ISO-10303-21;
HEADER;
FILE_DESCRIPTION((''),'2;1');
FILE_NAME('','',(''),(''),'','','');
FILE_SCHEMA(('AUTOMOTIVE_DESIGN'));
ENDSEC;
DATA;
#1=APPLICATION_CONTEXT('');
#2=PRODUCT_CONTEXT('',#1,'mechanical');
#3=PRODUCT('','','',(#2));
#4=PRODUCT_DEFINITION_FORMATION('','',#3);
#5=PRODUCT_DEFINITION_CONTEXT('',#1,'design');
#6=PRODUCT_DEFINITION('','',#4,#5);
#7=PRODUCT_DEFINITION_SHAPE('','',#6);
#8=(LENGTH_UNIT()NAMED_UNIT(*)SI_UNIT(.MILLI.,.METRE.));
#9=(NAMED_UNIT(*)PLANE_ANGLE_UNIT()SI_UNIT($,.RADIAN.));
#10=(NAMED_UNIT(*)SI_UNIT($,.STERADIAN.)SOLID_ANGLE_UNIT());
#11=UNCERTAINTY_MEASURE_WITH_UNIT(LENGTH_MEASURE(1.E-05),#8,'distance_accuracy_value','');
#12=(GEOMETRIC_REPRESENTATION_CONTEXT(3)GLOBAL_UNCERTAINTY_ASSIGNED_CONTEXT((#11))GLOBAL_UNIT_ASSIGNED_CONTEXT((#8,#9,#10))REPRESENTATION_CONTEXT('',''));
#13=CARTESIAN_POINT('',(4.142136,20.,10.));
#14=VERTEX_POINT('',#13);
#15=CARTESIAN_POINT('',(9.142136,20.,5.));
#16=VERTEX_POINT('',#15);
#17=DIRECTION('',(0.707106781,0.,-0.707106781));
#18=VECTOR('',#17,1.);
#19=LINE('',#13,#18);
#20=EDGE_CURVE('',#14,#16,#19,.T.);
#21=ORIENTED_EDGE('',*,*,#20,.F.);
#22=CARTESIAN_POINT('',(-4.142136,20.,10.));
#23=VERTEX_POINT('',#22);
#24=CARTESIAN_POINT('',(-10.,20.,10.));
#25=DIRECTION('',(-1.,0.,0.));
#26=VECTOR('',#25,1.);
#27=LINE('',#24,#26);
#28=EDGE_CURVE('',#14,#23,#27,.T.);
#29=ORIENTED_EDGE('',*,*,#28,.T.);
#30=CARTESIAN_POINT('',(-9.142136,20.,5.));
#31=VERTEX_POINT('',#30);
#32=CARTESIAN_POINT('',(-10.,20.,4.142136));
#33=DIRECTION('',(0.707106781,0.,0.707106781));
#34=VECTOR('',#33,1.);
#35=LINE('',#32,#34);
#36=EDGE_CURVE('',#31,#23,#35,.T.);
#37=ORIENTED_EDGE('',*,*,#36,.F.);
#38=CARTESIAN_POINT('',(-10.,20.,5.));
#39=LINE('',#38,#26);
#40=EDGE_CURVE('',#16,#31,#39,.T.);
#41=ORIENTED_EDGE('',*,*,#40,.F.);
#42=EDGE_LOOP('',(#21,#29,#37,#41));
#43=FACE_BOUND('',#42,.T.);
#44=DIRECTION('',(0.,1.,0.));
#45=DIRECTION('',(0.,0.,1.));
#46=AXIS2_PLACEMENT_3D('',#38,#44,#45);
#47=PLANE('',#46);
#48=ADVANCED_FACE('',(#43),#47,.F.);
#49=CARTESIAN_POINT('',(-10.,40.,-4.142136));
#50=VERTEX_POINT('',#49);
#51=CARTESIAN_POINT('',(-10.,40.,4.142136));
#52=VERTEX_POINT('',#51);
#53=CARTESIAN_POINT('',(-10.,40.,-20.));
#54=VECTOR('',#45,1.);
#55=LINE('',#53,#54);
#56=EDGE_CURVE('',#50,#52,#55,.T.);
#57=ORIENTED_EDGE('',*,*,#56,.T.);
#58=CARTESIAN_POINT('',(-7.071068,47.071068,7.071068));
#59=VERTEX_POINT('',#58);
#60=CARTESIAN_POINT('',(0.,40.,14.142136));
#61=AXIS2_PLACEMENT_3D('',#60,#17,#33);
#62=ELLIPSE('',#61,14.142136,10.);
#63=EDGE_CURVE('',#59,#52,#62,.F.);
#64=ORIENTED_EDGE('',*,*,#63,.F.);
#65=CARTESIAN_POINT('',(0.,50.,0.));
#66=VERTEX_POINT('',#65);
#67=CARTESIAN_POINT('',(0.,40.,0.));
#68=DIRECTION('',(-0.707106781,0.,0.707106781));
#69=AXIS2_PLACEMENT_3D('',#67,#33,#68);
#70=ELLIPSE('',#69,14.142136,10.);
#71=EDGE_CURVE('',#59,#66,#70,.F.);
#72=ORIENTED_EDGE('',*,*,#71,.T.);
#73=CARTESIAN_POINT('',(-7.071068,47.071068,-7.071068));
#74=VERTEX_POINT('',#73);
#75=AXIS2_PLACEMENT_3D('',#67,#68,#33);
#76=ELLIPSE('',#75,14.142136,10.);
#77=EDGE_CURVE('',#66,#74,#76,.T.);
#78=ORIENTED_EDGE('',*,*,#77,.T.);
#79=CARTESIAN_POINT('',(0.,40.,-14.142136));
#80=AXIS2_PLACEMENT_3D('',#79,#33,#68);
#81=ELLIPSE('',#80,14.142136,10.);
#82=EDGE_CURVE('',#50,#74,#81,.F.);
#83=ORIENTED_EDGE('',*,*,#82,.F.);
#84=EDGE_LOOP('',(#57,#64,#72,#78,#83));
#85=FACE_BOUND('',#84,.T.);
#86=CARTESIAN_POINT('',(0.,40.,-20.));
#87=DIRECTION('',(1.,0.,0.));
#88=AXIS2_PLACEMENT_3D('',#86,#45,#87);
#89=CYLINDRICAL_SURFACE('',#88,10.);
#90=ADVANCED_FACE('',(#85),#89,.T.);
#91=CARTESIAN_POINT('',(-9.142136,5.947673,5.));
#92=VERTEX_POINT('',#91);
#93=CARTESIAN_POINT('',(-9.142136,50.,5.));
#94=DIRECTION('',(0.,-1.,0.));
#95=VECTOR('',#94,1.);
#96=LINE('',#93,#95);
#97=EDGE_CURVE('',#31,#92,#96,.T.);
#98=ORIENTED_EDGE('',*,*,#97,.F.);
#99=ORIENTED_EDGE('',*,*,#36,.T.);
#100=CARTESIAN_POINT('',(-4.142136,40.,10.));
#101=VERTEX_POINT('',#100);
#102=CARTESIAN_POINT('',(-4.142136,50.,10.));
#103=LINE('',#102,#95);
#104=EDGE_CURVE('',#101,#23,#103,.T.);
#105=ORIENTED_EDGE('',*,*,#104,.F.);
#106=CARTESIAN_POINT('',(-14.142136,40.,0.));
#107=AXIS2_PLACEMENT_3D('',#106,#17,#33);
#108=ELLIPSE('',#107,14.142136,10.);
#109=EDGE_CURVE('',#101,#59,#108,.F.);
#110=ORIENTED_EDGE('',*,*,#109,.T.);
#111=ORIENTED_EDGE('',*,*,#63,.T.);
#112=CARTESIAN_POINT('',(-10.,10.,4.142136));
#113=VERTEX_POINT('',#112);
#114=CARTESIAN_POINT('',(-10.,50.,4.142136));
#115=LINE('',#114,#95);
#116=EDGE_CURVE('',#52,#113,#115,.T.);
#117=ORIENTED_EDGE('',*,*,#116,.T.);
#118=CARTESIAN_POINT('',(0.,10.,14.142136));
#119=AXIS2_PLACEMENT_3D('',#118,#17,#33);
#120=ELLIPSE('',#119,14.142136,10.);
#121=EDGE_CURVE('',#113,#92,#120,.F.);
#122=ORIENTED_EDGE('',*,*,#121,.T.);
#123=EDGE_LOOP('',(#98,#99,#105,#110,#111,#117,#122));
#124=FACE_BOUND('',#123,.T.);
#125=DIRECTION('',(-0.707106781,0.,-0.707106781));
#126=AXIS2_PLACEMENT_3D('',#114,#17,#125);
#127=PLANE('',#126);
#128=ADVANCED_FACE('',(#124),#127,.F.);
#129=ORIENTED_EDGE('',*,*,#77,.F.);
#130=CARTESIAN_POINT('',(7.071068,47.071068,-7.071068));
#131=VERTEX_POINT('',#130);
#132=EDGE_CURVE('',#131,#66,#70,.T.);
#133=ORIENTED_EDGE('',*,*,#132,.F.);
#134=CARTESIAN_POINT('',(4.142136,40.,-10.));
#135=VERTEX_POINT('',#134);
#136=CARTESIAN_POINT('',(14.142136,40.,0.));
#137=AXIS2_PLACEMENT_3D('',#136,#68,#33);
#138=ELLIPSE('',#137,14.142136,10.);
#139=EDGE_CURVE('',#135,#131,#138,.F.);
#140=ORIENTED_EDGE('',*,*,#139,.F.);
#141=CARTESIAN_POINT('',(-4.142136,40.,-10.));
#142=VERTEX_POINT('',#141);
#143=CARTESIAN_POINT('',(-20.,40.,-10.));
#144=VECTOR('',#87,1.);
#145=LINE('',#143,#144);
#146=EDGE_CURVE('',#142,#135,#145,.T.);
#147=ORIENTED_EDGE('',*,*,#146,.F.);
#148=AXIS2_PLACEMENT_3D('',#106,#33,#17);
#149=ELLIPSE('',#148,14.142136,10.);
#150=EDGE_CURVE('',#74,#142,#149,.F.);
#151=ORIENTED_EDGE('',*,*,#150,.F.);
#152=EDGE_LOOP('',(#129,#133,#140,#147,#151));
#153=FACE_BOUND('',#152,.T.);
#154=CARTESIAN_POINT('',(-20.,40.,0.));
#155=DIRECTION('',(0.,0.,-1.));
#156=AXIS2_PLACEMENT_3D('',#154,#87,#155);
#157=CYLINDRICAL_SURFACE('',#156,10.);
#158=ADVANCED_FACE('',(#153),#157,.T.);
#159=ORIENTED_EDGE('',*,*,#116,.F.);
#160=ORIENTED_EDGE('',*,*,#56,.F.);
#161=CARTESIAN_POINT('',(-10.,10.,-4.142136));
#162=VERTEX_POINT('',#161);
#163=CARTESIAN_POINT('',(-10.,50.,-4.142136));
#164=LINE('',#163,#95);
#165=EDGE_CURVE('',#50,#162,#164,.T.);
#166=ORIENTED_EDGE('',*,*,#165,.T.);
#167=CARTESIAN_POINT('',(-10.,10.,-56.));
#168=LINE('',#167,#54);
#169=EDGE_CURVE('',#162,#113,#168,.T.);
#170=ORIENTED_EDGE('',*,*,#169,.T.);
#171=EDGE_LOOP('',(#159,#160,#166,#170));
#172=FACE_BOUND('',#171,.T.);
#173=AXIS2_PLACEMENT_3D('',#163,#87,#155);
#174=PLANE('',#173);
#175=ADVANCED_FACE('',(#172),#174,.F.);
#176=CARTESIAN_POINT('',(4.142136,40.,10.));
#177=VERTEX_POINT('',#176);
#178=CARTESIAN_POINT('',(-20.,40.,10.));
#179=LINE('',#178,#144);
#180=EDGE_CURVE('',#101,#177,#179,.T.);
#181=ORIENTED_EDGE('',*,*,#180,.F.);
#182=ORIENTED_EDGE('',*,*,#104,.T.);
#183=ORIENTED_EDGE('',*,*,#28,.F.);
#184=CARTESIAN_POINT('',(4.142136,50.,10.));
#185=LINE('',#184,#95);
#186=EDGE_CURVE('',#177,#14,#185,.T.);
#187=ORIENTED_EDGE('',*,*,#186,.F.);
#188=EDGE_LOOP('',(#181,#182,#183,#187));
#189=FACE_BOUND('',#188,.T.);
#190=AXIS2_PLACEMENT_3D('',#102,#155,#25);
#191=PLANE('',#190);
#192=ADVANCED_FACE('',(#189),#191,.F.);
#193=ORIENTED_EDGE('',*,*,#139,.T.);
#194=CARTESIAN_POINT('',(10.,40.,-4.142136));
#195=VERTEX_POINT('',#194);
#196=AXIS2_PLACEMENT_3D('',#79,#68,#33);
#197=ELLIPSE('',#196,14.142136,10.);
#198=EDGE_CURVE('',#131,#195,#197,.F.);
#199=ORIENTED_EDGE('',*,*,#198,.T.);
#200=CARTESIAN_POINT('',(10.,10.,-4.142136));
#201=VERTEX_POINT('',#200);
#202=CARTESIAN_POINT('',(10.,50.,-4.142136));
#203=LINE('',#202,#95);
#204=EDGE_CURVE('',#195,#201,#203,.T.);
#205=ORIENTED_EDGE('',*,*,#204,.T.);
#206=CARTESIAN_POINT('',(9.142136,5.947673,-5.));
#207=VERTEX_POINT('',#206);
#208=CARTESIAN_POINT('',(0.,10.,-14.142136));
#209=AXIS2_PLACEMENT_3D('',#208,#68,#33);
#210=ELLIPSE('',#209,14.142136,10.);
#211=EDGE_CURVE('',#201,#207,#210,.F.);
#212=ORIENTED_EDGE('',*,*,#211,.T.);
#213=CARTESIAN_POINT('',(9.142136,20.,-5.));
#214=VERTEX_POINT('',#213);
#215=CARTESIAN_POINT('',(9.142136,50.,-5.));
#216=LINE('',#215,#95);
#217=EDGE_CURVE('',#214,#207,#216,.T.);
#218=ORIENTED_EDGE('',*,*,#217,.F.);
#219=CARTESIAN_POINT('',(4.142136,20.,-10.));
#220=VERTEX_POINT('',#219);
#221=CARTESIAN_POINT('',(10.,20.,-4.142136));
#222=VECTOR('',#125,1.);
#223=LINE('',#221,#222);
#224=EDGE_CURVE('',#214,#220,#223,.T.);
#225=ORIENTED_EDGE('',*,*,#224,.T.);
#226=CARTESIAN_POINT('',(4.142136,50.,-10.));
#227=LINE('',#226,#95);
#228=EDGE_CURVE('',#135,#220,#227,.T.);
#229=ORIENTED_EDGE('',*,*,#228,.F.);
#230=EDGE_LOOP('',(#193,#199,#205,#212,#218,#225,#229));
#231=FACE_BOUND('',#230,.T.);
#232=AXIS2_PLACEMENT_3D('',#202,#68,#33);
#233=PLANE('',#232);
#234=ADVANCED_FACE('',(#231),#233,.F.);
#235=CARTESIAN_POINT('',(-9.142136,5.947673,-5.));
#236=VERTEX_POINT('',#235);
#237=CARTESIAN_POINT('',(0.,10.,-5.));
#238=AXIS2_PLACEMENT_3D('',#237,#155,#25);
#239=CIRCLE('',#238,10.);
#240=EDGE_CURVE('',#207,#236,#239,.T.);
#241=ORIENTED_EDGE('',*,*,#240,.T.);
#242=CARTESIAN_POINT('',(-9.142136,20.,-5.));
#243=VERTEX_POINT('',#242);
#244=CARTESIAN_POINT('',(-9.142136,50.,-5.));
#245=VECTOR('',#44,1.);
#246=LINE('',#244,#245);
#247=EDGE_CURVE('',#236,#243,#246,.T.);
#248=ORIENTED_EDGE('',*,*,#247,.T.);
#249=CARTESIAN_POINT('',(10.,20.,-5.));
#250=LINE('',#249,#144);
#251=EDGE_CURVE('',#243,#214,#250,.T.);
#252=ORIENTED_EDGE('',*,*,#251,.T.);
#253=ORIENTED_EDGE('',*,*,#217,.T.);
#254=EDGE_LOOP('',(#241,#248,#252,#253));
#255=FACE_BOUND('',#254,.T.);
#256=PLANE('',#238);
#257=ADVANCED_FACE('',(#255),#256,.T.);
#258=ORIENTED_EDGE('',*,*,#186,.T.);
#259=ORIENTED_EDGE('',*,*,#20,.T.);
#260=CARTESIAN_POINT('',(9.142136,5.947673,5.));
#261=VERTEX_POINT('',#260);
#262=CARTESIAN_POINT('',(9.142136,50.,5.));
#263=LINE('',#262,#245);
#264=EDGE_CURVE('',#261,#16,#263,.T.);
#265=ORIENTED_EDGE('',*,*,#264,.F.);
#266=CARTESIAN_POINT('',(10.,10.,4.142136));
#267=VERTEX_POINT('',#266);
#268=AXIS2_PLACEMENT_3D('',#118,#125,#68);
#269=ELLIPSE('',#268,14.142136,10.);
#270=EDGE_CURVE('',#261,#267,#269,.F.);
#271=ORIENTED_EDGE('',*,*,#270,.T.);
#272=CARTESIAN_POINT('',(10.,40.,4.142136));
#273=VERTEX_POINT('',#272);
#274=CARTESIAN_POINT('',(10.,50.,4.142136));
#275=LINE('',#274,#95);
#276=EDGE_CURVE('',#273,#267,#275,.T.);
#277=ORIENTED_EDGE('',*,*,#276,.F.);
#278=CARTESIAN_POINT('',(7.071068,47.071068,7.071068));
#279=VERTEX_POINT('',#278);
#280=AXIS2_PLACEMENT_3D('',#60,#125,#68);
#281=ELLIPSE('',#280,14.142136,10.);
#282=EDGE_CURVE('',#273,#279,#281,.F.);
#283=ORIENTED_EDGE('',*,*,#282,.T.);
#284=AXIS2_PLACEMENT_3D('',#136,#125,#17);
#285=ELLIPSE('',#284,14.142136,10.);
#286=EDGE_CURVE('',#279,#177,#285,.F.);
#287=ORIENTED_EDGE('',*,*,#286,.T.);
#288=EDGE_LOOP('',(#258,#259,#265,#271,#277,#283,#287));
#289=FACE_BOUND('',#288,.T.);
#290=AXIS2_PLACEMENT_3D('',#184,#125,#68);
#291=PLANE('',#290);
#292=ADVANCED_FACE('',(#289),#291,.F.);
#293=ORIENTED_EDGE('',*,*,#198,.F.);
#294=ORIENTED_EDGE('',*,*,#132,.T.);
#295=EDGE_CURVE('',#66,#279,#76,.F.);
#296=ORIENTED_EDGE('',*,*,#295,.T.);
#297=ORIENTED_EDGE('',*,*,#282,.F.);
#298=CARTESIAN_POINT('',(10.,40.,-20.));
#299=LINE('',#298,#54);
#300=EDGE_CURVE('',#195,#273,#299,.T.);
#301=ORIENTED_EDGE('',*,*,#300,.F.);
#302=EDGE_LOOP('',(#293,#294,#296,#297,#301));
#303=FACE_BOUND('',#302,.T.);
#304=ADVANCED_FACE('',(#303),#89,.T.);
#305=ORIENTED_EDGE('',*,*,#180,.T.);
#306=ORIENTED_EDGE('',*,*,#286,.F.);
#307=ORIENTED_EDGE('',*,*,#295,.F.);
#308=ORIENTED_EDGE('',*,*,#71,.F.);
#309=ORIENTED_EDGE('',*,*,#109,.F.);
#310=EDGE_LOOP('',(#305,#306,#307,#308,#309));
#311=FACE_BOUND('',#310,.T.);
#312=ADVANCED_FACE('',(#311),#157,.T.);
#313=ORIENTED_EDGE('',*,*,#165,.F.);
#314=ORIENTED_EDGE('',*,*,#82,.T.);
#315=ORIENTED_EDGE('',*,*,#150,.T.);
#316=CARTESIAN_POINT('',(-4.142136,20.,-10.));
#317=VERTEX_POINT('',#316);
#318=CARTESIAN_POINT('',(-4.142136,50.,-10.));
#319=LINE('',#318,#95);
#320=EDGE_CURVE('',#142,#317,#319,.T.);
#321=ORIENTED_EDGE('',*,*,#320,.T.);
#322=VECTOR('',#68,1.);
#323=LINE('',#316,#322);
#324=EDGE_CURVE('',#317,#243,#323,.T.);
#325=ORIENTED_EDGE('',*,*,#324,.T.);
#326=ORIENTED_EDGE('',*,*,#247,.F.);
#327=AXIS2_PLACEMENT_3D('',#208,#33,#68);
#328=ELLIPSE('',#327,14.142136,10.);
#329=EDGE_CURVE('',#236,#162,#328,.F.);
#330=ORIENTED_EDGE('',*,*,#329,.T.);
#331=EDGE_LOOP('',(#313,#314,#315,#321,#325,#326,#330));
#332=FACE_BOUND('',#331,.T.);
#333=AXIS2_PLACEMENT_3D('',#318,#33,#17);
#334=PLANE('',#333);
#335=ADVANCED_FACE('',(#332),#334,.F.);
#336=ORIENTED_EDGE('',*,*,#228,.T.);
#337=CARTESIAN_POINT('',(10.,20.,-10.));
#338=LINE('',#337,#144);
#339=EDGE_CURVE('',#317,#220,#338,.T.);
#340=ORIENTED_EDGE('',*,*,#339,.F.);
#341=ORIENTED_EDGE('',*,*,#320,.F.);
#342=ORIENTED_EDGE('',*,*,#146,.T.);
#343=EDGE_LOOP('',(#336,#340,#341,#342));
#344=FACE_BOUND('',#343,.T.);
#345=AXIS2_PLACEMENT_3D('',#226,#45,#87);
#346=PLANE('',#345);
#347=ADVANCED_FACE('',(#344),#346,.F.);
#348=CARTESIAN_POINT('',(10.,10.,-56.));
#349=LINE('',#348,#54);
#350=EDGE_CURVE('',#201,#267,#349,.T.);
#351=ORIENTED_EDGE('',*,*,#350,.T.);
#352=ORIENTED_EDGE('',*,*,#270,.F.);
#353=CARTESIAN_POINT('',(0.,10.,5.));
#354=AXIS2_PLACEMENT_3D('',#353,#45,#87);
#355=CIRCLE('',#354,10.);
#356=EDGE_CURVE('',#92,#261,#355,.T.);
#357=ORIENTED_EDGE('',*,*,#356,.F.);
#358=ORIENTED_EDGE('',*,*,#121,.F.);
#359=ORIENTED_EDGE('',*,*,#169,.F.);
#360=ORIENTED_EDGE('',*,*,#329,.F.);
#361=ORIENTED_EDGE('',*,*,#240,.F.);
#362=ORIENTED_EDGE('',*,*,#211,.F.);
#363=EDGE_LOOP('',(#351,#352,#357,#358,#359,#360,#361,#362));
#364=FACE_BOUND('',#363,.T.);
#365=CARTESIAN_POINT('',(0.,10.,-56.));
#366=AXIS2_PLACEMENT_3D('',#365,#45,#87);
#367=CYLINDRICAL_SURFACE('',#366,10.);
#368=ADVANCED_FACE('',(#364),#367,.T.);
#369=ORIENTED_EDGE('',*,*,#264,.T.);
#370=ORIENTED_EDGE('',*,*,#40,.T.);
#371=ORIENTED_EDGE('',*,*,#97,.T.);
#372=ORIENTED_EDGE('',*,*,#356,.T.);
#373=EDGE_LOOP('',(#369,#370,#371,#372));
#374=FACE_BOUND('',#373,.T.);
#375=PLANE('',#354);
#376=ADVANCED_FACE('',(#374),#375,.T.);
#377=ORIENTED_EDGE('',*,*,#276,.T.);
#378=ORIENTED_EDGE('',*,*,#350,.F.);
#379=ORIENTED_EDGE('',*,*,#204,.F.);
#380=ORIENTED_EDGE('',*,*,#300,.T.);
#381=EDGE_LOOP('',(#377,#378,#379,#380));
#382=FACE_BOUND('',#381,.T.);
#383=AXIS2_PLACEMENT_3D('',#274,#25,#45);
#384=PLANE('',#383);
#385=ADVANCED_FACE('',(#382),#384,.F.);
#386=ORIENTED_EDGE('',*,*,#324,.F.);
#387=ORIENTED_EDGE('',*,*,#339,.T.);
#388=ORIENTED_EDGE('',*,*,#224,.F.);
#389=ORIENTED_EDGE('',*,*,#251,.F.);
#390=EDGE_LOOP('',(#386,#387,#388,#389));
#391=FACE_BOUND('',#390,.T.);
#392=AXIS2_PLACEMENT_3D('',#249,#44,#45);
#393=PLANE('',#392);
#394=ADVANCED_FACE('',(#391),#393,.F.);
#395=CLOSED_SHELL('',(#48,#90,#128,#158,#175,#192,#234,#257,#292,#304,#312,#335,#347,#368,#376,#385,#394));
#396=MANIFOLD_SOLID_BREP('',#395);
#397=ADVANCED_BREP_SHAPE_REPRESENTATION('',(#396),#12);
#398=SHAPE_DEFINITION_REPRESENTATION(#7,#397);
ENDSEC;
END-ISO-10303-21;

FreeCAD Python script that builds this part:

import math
import FreeCAD as App
import Part
import Sketcher
from FreeCAD import Vector


def add_polygon(sketch, points):
    """Adds a closed chain of lines whose ends are joined by coincident constraints."""
    first, n = sketch.GeometryCount, len(points)
    for a, b in zip(points, points[1:] + points[:1]):
        sketch.addGeometry(Part.LineSegment(App.Vector(*a, 0), App.Vector(*b, 0)), False)
    for i in range(n):
        sketch.addConstraint(Sketcher.Constraint("Coincident", first + i, 2, first + (i + 1) % n, 1))

doc = App.newDocument("Part")
body = doc.addObject("PartDesign::Body", "Body")

sketch1 = doc.addObject("Sketcher::SketchObject", "Sketch")
body.addObject(sketch1)
sketch1.AttachmentSupport = (doc.XZ_Plane, [""])
sketch1.MapMode = "FlatFace"
add_polygon(sketch1, [(10, -4.142136), (4.142136, -10), (-4.142136, -10), (-10, -4.142136), (-10, 4.142136), (-4.142136, 10), (4.142136, 10), (10, 4.142136)])
sketch1.addConstraint([
    Sketcher.Constraint("Horizontal", 1),
    Sketcher.Constraint("Vertical", 3),
    Sketcher.Constraint("Horizontal", 5),
    Sketcher.Constraint("Vertical", 7),
    Sketcher.Constraint("Symmetric", 0, 2, 4, 2, -1, 1),
    Sketcher.Constraint("Symmetric", 2, 2, 6, 2, -1, 1),
    Sketcher.Constraint("Perpendicular", 0, 2),
    Sketcher.Constraint("Perpendicular", 2, 4),
    Sketcher.Constraint("Perpendicular", 4, 6),
    Sketcher.Constraint("Horizontal", 3, 2, 6, 2),
    Sketcher.Constraint("Vertical", 1, 2, 4, 2),
    Sketcher.Constraint("Equal", 5, 3),
    Sketcher.Constraint("DistanceY", 0, 2, -1, 1, 10.0),
    Sketcher.Constraint("DistanceX", 1, 2, 1, 1, 8.284271),
])
pad1 = doc.addObject("PartDesign::Pad", "Pad")
body.addObject(pad1)
pad1.Profile = sketch1
pad1.Length = 50
pad1.Reversed = True

sketch2 = doc.addObject("Sketcher::SketchObject", "Sketch001")
body.addObject(sketch2)
sketch2.AttachmentSupport = (doc.XY_Plane, [""])
sketch2.MapMode = "FlatFace"
sketch2.AttachmentOffset = App.Placement(Vector(0, 0, 10), App.Rotation())
sketch2.addGeometry([
    Part.LineSegment(Vector(-10, 10, 0), Vector(-10, -2.389296, 0)),
    Part.LineSegment(Vector(-10, -2.389296, 0), Vector(10, -2.389296, 0)),
    Part.LineSegment(Vector(10, -2.389296, 0), Vector(10, 10, 0)),
    Part.ArcOfCircle(Part.Circle(Vector(0, 10, 0), Vector(0, 0, 1), 10), math.radians(180), math.radians(360)),
], False)
sketch2.addConstraint([
    Sketcher.Constraint("Coincident", 0, 2, 1, 1),
    Sketcher.Constraint("Coincident", 1, 2, 2, 1),
    Sketcher.Constraint("Tangent", 2, 2, 3, 2),
    Sketcher.Constraint("Tangent", 3, 1, 0, 1),
    Sketcher.Constraint("Vertical", 0),
    Sketcher.Constraint("Horizontal", 1),
    Sketcher.Constraint("Vertical", 2),
    Sketcher.Constraint("PointOnObject", 3, 3, -2),
    Sketcher.Constraint("Radius", 3, 10.0),
    Sketcher.Constraint("DistanceY", -1, 1, 3, 3, 10.0),
    Sketcher.Constraint("DistanceY", 0, 2, 0, 1, 12.389296),
])
pocket1 = doc.addObject("PartDesign::Pocket", "Pocket")
body.addObject(pocket1)
pocket1.Profile = sketch2
pocket1.Length = 66

sketch3 = doc.addObject("Sketcher::SketchObject", "Sketch002")
body.addObject(sketch3)
sketch3.AttachmentSupport = (doc.XY_Plane, [""])
sketch3.MapMode = "FlatFace"
sketch3.AttachmentOffset = App.Placement(Vector(0, 0, 10), App.Rotation())
sketch3.addGeometry([
    Part.LineSegment(Vector(-10, 20, 0), Vector(-10, 10, 0)),
    Part.ArcOfCircle(Part.Circle(Vector(0, 10, 0), Vector(0, 0, 1), 10), math.radians(180), math.radians(360)),
    Part.LineSegment(Vector(10, 10, 0), Vector(10, 20, 0)),
    Part.LineSegment(Vector(10, 20, 0), Vector(-10, 20, 0)),
], False)
sketch3.addConstraint([
    Sketcher.Constraint("Tangent", 0, 2, 1, 1),
    Sketcher.Constraint("Tangent", 1, 2, 2, 1),
    Sketcher.Constraint("Coincident", 2, 2, 3, 1),
    Sketcher.Constraint("Coincident", 3, 2, 0, 1),
    Sketcher.Constraint("Vertical", 0),
    Sketcher.Constraint("Vertical", 2),
    Sketcher.Constraint("Horizontal", 3),
    Sketcher.Constraint("PointOnObject", 1, 3, -2),
    Sketcher.Constraint("Radius", 1, 10.0),
    Sketcher.Constraint("DistanceY", 0, 2, 0, 1, 10.0),
    Sketcher.Constraint("DistanceY", -1, 1, 1, 3, 10.0),
])
pocket2 = doc.addObject("PartDesign::Pocket", "Pocket001")
body.addObject(pocket2)
pocket2.Profile = sketch3
pocket2.Length = 5

sketch4 = doc.addObject("Sketcher::SketchObject", "Sketch003")
body.addObject(sketch4)
sketch4.AttachmentSupport = (doc.XY_Plane, [""])
sketch4.MapMode = "FlatFace"
sketch4.AttachmentOffset = App.Placement(Vector(0, 0, -5), App.Rotation())
sketch4.addGeometry([
    Part.LineSegment(Vector(10, 20, 0), Vector(10, 10, 0)),
    Part.ArcOfCircle(Part.Circle(Vector(0, 10, 0), Vector(0, 0, 1), 10), math.radians(180), math.radians(360)),
    Part.LineSegment(Vector(-10, 10, 0), Vector(-10, 20, 0)),
    Part.LineSegment(Vector(-10, 20, 0), Vector(10, 20, 0)),
], False)
sketch4.addConstraint([
    Sketcher.Constraint("Tangent", 0, 2, 1, 2),
    Sketcher.Constraint("Tangent", 1, 1, 2, 1),
    Sketcher.Constraint("Coincident", 2, 2, 3, 1),
    Sketcher.Constraint("Coincident", 3, 2, 0, 1),
    Sketcher.Constraint("Vertical", 0),
    Sketcher.Constraint("Vertical", 2),
    Sketcher.Constraint("Horizontal", 3),
    Sketcher.Constraint("PointOnObject", 1, 3, -2),
    Sketcher.Constraint("Radius", 1, 10.0),
    Sketcher.Constraint("DistanceY", 0, 2, 0, 1, 10.0),
    Sketcher.Constraint("DistanceY", -1, 1, 1, 3, 10.0),
])
pocket3 = doc.addObject("PartDesign::Pocket", "Pocket002")
body.addObject(pocket3)
pocket3.Profile = sketch4
pocket3.Length = 5

sketch5 = doc.addObject("Sketcher::SketchObject", "Sketch004")
body.addObject(sketch5)
sketch5.AttachmentSupport = (doc.XY_Plane, [""])
sketch5.MapMode = "FlatFace"
sketch5.AttachmentOffset = App.Placement(Vector(0, 0, 10), App.Rotation())
sketch5.addGeometry([
    Part.LineSegment(Vector(-10, 52.610017, 0), Vector(-10, 40, 0)),
    Part.ArcOfCircle(Part.Circle(Vector(0, 40, 0), Vector(0, 0, 1), 10), math.radians(0), math.radians(180)),
    Part.LineSegment(Vector(10, 40, 0), Vector(10, 52.610017, 0)),
    Part.LineSegment(Vector(10, 52.610017, 0), Vector(-10, 52.610017, 0)),
], False)
sketch5.addConstraint([
    Sketcher.Constraint("Tangent", 0, 2, 1, 2),
    Sketcher.Constraint("Tangent", 1, 1, 2, 1),
    Sketcher.Constraint("Coincident", 2, 2, 3, 1),
    Sketcher.Constraint("Coincident", 3, 2, 0, 1),
    Sketcher.Constraint("Vertical", 0),
    Sketcher.Constraint("Vertical", 2),
    Sketcher.Constraint("Horizontal", 3),
    Sketcher.Constraint("PointOnObject", 1, 3, -2),
    Sketcher.Constraint("Radius", 1, 10.0),
    Sketcher.Constraint("DistanceY", -1, 1, 1, 3, 40.0),
    Sketcher.Constraint("DistanceY", 0, 2, 0, 1, 12.610017),
])
pocket4 = doc.addObject("PartDesign::Pocket", "Pocket003")
body.addObject(pocket4)
pocket4.Profile = sketch5
pocket4.Length = 30

sketch6 = doc.addObject("Sketcher::SketchObject", "Sketch005")
body.addObject(sketch6)
sketch6.AttachmentSupport = (doc.YZ_Plane, [""])
sketch6.MapMode = "FlatFace"
sketch6.AttachmentOffset = App.Placement(Vector(0, 0, 10), App.Rotation())
sketch6.addGeometry([
    Part.LineSegment(Vector(54.562322, 10, 0), Vector(40, 10, 0)),
    Part.ArcOfCircle(Part.Circle(Vector(40, 0, 0), Vector(0, 0, 1), 10), math.radians(-90), math.radians(90)),
    Part.LineSegment(Vector(40, -10, 0), Vector(54.562322, -10, 0)),
    Part.LineSegment(Vector(54.562322, -10, 0), Vector(54.562322, 10, 0)),
], False)
sketch6.addConstraint([
    Sketcher.Constraint("Tangent", 0, 2, 1, 2),
    Sketcher.Constraint("Tangent", 1, 1, 2, 1),
    Sketcher.Constraint("Coincident", 2, 2, 3, 1),
    Sketcher.Constraint("Coincident", 3, 2, 0, 1),
    Sketcher.Constraint("Horizontal", 0),
    Sketcher.Constraint("Horizontal", 2),
    Sketcher.Constraint("Vertical", 3),
    Sketcher.Constraint("PointOnObject", 1, 3, -1),
    Sketcher.Constraint("Radius", 1, 10.0),
    Sketcher.Constraint("DistanceX", -1, 1, 1, 3, 40.0),
    Sketcher.Constraint("DistanceX", 0, 2, 0, 1, 14.562322),
])
pocket5 = doc.addObject("PartDesign::Pocket", "Pocket004")
body.addObject(pocket5)
pocket5.Profile = sketch6
pocket5.Length = 30

doc.recompute()
